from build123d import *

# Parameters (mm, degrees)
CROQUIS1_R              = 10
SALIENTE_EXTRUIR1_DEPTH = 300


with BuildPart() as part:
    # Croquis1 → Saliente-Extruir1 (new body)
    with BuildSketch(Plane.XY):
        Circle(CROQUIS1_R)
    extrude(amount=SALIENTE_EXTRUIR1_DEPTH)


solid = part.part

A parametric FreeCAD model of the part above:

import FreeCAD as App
import Part
import Sketcher

V = App.Vector
Q = App.Units.Quantity

doc = App.newDocument("Part")
params = doc.addObject("Spreadsheet::Sheet", "Params")
for row, (alias, value) in enumerate([
    ("sketch1_diameter", "20 mm"),
    ("pad1_length", "300 mm"),
], start=1):
    params.set(f"A{row}", alias)
    params.set(f"B{row}", "=" + value)
    params.setAlias(f"B{row}", alias)

body = doc.addObject("PartDesign::Body", "Body")

sketch1 = body.newObject("Sketcher::SketchObject", "Sketch")
sketch1.AttachmentSupport = (doc.getObject("XY_Plane"), [""])
sketch1.MapMode = "FlatFace"
sketch1.addGeometry(Part.Circle(V(0, 0, 0), V(0, 0, 1), 10), False)
sketch1.addConstraint([
    Sketcher.Constraint("Coincident", 0, 3, -1, 1),
    Sketcher.Constraint("Diameter", 0, Q("20 mm")),
])
sketch1.setExpression("Constraints[1]", "Params.sketch1_diameter")
pad1 = body.newObject("PartDesign::Pad", "Pad")
pad1.Profile = sketch1
pad1.setExpression("Length", "Params.pad1_length")

doc.recompute()
